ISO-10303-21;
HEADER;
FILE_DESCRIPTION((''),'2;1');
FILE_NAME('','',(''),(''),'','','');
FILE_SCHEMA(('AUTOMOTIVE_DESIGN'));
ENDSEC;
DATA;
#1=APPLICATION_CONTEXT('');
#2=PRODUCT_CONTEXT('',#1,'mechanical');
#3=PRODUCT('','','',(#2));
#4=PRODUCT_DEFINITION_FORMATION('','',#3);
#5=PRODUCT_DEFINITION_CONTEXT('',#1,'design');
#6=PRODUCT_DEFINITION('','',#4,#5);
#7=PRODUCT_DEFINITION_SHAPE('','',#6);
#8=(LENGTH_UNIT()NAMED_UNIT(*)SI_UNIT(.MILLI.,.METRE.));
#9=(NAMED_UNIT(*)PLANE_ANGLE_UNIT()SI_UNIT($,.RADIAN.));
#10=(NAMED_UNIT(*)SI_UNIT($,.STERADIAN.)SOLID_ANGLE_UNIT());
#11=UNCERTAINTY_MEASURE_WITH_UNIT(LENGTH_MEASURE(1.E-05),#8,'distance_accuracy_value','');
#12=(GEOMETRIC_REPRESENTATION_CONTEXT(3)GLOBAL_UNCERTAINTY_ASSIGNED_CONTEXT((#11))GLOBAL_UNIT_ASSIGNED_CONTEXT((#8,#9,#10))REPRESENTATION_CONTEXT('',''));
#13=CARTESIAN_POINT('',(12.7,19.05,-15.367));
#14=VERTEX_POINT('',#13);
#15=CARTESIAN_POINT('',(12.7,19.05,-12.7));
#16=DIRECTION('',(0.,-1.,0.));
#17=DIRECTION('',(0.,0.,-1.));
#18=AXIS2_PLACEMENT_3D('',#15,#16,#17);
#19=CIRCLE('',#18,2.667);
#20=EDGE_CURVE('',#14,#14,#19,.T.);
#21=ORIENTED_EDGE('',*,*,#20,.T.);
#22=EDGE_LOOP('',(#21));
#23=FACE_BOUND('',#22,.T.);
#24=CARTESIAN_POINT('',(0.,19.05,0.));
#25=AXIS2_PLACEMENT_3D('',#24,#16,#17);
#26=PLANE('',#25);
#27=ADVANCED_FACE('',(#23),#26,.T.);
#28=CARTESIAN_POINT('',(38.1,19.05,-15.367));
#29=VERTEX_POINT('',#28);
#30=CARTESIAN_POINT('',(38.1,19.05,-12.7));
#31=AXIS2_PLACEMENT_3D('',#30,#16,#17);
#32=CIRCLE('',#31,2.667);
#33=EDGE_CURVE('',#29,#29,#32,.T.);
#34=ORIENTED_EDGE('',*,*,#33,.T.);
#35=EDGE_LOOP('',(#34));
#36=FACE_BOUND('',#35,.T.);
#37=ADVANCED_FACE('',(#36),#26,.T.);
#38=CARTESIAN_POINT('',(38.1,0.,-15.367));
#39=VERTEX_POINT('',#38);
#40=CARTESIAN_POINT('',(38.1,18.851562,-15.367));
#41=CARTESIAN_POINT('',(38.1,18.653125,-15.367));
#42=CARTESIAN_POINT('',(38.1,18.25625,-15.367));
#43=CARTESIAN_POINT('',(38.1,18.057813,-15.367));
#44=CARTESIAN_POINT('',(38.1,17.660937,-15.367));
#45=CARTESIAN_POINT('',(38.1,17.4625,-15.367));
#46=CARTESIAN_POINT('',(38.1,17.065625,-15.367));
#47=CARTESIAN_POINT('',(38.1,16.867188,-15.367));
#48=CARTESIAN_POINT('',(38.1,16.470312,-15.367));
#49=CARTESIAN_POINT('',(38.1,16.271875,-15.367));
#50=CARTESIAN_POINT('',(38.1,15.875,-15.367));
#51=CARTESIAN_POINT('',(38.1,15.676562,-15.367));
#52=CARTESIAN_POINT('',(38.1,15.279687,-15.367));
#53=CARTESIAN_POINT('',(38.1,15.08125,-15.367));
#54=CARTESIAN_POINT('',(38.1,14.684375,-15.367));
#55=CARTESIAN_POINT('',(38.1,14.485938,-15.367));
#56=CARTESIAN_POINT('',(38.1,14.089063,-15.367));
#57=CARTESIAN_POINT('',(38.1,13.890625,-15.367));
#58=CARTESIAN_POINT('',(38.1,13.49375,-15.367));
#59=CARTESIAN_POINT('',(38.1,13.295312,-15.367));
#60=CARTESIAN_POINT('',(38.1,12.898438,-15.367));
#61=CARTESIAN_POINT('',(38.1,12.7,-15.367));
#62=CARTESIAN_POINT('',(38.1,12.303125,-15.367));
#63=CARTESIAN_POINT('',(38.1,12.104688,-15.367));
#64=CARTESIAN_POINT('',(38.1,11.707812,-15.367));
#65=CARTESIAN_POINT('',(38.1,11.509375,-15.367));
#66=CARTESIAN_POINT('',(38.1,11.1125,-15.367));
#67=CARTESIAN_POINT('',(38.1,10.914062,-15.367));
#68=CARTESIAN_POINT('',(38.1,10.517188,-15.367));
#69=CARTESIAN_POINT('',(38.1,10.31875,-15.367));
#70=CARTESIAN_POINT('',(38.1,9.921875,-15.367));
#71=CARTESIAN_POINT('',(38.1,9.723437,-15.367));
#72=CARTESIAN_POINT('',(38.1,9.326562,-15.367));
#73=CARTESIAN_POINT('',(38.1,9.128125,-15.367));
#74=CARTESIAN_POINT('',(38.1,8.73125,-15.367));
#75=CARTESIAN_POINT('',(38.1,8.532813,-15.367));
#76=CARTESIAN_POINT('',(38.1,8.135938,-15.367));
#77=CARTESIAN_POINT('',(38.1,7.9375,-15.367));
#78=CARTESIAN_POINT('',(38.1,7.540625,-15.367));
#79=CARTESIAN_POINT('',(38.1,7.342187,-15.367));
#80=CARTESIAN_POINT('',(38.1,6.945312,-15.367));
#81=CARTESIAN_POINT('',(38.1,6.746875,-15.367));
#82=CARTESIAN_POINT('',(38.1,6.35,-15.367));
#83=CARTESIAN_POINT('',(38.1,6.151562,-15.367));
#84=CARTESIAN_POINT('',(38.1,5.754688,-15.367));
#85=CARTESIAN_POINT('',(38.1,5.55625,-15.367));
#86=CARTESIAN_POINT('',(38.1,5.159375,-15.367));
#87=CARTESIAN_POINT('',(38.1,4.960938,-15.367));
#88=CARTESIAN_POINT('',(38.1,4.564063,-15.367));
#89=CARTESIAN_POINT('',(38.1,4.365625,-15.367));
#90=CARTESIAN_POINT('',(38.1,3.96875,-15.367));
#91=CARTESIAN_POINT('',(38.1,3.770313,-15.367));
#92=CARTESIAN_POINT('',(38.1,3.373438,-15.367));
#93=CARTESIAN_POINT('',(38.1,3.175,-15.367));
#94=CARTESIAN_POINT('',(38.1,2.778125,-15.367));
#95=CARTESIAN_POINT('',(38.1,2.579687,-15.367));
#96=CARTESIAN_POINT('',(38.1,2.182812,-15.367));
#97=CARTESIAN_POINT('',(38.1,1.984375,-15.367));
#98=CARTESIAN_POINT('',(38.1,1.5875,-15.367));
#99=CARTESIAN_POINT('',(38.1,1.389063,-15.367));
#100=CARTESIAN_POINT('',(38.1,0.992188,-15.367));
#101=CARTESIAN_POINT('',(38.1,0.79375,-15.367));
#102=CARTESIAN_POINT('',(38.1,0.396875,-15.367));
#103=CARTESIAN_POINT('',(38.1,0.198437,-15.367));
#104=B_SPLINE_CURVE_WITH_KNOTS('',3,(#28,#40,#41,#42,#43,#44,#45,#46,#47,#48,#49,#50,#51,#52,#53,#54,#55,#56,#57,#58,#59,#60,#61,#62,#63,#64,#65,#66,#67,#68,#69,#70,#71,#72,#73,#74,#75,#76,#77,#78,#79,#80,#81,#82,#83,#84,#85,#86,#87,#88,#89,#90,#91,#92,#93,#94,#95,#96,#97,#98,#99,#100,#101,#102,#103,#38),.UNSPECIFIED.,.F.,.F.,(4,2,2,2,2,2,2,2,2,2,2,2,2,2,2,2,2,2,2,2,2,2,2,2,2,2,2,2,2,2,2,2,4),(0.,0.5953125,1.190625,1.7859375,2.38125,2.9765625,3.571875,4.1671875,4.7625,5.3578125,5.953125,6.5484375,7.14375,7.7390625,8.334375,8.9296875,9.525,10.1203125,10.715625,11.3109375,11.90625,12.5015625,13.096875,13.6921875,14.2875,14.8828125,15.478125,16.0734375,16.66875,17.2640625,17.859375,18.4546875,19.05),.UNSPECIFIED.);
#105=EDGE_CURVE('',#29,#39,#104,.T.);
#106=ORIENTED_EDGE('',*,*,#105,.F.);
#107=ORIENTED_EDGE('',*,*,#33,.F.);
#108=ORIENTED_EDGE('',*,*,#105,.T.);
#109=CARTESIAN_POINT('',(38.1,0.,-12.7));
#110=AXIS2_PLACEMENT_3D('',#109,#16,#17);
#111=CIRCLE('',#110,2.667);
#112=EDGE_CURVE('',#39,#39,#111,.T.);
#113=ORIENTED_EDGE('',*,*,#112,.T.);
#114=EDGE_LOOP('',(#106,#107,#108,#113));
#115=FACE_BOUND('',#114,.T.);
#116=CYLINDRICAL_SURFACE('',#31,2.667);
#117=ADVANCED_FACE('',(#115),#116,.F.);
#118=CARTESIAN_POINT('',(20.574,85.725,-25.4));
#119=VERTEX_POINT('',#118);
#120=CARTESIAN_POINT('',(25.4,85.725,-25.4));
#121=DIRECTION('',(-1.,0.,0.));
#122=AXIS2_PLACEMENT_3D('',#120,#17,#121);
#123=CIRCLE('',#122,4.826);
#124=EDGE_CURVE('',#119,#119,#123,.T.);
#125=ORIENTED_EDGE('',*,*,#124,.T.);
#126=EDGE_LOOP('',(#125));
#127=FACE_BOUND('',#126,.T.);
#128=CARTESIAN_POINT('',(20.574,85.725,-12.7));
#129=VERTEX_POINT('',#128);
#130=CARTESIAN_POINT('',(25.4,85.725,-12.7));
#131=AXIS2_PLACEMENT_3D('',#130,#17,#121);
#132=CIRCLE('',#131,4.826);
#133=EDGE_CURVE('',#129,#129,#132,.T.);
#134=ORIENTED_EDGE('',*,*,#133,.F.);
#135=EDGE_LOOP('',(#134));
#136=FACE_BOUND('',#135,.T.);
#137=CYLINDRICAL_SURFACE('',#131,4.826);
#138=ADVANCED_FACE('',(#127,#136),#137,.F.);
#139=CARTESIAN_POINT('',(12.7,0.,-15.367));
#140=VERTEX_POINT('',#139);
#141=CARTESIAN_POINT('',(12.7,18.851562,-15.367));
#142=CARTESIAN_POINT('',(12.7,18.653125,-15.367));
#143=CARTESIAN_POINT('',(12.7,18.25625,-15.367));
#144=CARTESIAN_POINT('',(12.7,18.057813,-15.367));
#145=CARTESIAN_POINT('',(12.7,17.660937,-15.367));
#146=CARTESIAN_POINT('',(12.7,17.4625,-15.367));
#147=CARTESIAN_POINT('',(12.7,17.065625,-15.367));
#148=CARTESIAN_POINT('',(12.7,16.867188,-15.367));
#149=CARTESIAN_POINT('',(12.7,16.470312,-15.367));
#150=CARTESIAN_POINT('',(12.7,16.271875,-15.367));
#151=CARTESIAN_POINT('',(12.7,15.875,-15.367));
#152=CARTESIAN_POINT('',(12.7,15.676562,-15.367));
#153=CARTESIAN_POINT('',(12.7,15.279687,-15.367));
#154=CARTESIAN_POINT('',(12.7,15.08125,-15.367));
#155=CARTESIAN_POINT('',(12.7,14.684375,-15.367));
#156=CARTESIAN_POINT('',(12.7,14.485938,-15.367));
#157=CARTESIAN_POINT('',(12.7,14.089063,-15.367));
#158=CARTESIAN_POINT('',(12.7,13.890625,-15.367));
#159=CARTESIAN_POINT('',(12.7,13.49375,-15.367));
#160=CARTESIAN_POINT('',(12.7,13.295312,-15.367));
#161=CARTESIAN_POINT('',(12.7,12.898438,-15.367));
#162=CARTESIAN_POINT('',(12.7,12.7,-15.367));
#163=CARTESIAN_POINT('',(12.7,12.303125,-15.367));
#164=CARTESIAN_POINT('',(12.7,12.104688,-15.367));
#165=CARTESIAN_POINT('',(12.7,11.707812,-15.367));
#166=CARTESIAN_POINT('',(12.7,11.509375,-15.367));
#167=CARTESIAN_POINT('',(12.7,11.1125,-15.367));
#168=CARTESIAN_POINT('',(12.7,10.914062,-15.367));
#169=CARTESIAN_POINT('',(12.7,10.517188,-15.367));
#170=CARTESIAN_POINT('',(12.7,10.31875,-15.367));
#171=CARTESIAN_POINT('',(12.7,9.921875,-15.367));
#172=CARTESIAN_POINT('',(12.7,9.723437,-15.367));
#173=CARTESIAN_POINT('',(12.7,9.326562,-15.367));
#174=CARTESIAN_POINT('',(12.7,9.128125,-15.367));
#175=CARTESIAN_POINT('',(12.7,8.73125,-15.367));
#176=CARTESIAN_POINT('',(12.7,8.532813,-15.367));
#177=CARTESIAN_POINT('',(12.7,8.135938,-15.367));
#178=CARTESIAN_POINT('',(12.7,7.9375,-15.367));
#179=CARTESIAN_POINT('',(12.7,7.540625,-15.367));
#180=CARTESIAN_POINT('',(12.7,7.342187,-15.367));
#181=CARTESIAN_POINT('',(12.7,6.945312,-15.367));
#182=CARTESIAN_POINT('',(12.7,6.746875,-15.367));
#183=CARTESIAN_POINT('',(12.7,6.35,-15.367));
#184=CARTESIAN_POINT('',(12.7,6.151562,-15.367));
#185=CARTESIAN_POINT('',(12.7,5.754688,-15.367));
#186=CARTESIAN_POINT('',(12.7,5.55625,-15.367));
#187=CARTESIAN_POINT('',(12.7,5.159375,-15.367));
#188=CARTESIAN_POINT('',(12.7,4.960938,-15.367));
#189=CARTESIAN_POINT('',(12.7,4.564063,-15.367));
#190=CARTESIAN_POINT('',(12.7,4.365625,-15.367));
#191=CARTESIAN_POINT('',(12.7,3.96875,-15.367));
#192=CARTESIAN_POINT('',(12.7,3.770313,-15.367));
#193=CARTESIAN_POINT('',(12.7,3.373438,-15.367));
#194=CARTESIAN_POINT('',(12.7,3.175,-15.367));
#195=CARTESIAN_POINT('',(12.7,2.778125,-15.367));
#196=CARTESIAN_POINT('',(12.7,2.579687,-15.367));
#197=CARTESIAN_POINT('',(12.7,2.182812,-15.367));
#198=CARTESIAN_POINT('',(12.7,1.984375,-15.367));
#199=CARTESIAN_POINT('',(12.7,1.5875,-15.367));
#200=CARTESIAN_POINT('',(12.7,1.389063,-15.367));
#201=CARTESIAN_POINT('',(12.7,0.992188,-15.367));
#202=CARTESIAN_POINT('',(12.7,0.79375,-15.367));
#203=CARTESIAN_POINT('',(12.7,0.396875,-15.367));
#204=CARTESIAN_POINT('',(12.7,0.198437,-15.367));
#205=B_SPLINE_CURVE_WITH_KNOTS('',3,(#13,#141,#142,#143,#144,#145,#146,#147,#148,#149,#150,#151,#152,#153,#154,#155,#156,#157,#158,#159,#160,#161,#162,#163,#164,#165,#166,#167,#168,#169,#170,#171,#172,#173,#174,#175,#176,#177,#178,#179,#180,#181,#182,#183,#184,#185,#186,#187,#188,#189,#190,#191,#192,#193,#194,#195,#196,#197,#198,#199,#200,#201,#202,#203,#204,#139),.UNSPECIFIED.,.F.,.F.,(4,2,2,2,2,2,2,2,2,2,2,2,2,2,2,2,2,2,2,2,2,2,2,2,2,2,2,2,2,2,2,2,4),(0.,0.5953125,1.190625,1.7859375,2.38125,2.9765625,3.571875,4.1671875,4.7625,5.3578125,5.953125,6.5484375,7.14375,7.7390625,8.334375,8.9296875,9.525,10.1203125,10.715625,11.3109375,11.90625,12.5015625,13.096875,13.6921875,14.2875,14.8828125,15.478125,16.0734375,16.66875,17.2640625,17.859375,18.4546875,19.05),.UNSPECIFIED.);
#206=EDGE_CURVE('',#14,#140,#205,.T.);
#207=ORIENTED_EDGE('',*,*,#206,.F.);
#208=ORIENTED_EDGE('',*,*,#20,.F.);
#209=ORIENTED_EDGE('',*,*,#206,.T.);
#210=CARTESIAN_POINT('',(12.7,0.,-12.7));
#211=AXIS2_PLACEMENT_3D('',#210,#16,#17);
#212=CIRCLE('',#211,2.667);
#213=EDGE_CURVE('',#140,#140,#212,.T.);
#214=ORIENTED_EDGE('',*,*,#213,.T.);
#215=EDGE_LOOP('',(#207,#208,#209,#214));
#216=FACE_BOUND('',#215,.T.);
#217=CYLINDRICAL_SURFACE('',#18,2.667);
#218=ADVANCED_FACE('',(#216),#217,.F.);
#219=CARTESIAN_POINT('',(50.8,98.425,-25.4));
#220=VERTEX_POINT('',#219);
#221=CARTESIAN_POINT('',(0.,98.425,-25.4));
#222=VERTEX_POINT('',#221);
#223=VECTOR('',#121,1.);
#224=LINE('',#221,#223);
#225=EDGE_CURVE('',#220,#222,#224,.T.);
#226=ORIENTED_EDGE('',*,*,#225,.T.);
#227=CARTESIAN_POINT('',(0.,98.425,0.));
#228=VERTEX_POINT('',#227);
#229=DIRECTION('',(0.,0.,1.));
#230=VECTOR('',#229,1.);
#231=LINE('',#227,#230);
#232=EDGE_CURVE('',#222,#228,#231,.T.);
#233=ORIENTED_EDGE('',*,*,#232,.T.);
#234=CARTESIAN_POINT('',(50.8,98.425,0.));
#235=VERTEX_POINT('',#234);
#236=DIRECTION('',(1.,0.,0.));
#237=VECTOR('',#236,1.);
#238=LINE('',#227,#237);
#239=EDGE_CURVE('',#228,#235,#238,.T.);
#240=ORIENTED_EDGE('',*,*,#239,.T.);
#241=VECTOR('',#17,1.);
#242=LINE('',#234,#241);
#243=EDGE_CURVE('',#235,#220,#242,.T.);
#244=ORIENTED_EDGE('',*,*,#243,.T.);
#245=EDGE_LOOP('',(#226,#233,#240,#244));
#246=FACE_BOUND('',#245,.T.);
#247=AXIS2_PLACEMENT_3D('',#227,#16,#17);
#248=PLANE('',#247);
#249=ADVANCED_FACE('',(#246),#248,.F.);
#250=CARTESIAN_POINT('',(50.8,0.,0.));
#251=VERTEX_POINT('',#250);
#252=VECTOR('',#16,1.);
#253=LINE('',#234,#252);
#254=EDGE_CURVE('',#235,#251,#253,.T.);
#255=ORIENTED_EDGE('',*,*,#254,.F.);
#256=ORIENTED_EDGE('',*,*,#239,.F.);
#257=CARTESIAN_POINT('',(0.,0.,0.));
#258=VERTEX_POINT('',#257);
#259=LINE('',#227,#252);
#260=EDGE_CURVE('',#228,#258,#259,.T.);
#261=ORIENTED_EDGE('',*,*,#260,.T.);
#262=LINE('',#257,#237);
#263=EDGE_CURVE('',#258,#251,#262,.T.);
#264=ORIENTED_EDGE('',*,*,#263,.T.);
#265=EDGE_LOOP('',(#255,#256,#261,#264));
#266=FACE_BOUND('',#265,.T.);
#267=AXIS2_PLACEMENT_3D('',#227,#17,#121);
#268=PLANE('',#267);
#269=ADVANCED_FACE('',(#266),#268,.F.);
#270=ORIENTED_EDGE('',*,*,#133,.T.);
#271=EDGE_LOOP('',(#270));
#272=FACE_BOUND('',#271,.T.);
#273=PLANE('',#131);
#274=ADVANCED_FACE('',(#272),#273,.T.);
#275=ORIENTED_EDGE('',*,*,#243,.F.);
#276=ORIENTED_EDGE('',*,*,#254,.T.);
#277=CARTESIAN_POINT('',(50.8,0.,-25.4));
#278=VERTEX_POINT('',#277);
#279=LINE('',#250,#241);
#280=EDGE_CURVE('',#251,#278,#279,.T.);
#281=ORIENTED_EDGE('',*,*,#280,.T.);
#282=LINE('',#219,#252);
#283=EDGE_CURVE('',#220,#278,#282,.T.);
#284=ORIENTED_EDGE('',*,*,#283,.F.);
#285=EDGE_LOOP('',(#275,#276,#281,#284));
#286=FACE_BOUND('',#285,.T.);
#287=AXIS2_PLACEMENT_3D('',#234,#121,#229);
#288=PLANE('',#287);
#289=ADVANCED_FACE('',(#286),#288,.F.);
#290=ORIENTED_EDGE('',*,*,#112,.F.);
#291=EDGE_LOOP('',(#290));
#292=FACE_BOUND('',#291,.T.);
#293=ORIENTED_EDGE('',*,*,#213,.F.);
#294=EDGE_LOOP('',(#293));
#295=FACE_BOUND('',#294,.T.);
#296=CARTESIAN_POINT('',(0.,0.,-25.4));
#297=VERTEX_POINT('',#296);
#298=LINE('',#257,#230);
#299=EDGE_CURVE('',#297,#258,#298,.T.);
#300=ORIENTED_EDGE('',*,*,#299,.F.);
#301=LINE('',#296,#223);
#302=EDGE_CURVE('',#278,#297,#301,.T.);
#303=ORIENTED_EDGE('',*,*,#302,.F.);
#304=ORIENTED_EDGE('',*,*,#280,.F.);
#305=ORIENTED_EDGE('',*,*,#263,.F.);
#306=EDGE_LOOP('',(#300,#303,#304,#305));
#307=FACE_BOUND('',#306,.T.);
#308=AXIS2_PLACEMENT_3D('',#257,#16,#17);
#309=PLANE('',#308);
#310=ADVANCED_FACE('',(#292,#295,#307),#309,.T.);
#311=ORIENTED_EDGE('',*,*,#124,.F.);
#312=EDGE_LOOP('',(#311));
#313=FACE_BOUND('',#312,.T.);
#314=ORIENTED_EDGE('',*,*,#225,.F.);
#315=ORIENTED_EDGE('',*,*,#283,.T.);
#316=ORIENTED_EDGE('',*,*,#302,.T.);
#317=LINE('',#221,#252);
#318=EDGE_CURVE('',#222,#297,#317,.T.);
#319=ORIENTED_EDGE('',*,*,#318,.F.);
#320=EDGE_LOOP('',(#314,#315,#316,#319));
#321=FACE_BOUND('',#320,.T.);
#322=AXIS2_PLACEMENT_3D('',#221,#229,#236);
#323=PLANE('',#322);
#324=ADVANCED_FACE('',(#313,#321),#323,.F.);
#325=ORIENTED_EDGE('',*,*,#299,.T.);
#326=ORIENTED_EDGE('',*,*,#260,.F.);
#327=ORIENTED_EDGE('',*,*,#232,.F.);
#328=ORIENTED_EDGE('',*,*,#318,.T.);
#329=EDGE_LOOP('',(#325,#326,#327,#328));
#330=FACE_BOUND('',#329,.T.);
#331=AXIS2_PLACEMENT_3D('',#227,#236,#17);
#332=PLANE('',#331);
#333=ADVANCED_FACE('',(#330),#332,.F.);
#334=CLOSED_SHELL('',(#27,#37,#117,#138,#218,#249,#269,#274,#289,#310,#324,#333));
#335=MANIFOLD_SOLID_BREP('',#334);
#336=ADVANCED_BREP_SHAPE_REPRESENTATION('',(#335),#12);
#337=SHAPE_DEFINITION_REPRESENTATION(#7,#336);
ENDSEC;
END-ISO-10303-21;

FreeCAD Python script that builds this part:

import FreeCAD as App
import Part
import Sketcher
from FreeCAD import Vector
Q = App.Units.Quantity

doc = App.newDocument("Part")
body = doc.addObject("PartDesign::Body", "Body")

sketch1 = doc.addObject("Sketcher::SketchObject", "Sketch")
body.addObject(sketch1)
sketch1.AttachmentSupport = (doc.XZ_Plane, [""])
sketch1.MapMode = "FlatFace"
sketch1.addGeometry([
    Part.LineSegment(Vector(0, -25.4, 0), Vector(0, 0, 0)),
    Part.LineSegment(Vector(0, 0, 0), Vector(50.8, 0, 0)),
    Part.LineSegment(Vector(50.8, 0, 0), Vector(50.8, -25.4, 0)),
    Part.LineSegment(Vector(50.8, -25.4, 0), Vector(0, -25.4, 0)),
], False)
sketch1.addConstraint([
    Sketcher.Constraint("Coincident", 0, 2, 1, 1),
    Sketcher.Constraint("Coincident", 1, 2, 2, 1),
    Sketcher.Constraint("Coincident", 2, 2, 3, 1),
    Sketcher.Constraint("Coincident", 3, 2, 0, 1),
    Sketcher.Constraint("Vertical", 0),
    Sketcher.Constraint("Horizontal", 1),
    Sketcher.Constraint("Vertical", 2),
    Sketcher.Constraint("Horizontal", 3),
    Sketcher.Constraint("Coincident", 0, 2, -1, 1),
    Sketcher.Constraint("DistanceX", 1, 1, 1, 2, Q("2 in")),
    Sketcher.Constraint("DistanceY", 0, 1, 0, 2, Q("1 in")),
])
pad1 = doc.addObject("PartDesign::Pad", "Pad")
body.addObject(pad1)
pad1.Profile = sketch1
pad1.Length = Q("3.875 in")
pad1.Reversed = True

sketch2 = doc.addObject("Sketcher::SketchObject", "Sketch001")
body.addObject(sketch2)
sketch2.AttachmentSupport = (doc.XZ_Plane, [""])
sketch2.MapMode = "FlatFace"
sketch2.addGeometry([
    Part.Circle(Vector(12.7, -12.7, 0), Vector(0, 0, 1), 2.667),
    Part.Circle(Vector(38.1, -12.7, 0), Vector(0, 0, 1), 2.667),
], False)
sketch2.addConstraint([
    Sketcher.Constraint("Equal", 0, 1),
    Sketcher.Constraint("Horizontal", 0, 3, 1, 3),
    Sketcher.Constraint("Diameter", 0, Q("0.21 in")),
    Sketcher.Constraint("DistanceX", 0, 3, 1, 3, Q("1 in")),
    Sketcher.Constraint("DistanceX", -1, 1, 0, 3, Q("0.5 in")),
    Sketcher.Constraint("DistanceY", 0, 3, -1, 1, Q("0.5 in")),
])
pocket1 = doc.addObject("PartDesign::Pocket", "Pocket")
body.addObject(pocket1)
pocket1.Profile = sketch2
pocket1.Length = Q("0.75 in")

sketch3 = doc.addObject("Sketcher::SketchObject", "Sketch002")
body.addObject(sketch3)
sketch3.AttachmentSupport = (doc.XY_Plane, [""])
sketch3.MapMode = "FlatFace"
sketch3.AttachmentOffset = App.Placement(Vector(0, 0, -1 * 25.4), App.Rotation())
sketch3.addGeometry(Part.Circle(Vector(25.4, 85.725, 0), Vector(0, 0, 1), 4.826), False)
sketch3.addConstraint([
    Sketcher.Constraint("Diameter", 0, Q("0.38 in")),
    Sketcher.Constraint("DistanceX", -1, 1, 0, 3, Q("1 in")),
    Sketcher.Constraint("DistanceY", -1, 1, 0, 3, Q("3.375 in")),
])
pocket2 = doc.addObject("PartDesign::Pocket", "Pocket001")
body.addObject(pocket2)
pocket2.Profile = sketch3
pocket2.Length = Q("0.5 in")
pocket2.Reversed = True

doc.recompute()
